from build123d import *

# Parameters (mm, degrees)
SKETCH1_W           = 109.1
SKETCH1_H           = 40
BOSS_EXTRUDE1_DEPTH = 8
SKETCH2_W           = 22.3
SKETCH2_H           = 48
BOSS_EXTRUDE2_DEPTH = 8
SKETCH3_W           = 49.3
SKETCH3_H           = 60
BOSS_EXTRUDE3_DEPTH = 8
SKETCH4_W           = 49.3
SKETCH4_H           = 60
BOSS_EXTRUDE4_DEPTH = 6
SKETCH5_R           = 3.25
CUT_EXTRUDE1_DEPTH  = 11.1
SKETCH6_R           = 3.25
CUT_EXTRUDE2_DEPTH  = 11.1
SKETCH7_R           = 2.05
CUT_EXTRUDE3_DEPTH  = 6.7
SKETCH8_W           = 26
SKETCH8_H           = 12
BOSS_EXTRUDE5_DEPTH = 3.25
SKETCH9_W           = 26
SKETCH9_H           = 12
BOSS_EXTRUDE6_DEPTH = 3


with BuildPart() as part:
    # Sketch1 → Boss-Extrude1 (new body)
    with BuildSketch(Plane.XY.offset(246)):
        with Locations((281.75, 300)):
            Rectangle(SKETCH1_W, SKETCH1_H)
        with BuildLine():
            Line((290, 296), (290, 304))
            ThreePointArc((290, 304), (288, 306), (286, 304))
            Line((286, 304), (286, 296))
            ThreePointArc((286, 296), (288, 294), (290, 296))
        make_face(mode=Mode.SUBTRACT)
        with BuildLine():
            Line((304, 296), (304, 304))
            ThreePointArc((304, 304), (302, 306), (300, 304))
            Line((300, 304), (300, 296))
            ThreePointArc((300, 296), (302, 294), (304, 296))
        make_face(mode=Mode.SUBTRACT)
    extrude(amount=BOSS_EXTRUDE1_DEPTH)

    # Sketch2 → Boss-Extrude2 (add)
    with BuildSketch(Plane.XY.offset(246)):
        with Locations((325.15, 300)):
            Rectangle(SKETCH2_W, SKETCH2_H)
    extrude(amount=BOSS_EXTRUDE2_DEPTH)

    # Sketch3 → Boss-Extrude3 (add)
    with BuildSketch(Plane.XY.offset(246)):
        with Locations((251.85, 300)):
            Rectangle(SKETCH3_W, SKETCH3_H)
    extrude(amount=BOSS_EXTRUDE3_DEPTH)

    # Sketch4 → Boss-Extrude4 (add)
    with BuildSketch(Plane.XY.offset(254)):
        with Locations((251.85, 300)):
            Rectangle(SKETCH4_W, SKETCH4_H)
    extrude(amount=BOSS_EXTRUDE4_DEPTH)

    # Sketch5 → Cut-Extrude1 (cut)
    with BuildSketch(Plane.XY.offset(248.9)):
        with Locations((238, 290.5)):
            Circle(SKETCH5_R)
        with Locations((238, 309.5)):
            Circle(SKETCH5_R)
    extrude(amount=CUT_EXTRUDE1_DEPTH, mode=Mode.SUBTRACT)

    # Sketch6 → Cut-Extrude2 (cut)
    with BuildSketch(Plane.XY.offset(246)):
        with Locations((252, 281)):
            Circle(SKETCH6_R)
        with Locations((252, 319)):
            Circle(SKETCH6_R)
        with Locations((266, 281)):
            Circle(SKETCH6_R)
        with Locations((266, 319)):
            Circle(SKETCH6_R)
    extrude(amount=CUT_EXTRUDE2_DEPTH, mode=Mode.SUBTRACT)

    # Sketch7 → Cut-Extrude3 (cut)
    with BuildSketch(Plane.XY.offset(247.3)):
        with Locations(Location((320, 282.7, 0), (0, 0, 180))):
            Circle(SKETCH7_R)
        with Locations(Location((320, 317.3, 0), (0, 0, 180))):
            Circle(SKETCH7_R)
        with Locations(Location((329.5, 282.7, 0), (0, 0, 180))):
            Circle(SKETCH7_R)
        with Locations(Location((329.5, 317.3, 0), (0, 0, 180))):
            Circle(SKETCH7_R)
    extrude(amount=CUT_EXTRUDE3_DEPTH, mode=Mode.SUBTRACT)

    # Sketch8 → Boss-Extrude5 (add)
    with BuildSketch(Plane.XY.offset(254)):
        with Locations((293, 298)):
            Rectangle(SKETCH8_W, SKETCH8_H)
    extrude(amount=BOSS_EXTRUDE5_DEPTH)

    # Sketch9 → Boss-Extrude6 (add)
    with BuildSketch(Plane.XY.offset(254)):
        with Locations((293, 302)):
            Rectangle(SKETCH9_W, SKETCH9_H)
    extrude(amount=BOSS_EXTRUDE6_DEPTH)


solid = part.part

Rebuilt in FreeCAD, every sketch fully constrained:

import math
import FreeCAD as App
import Part
import Sketcher

V = App.Vector
Q = App.Units.Quantity

doc = App.newDocument("Part")
params = doc.addObject("Spreadsheet::Sheet", "Params")
for row, (alias, value) in enumerate([
    ("sketch1_radius", "2 mm"),
    ("sketch1_height", "40 mm"),
    ("sketch1_height2", "8 mm"),
    ("sketch1_width", "109.1 mm"),
    ("pad1_length", "8 mm"),
    ("sketch2_height", "48 mm"),
    ("sketch2_width", "22.3 mm"),
    ("pad2_length", "8 mm"),
    ("sketch3_height", "60 mm"),
    ("sketch3_width", "49.3 mm"),
    ("pad3_length", "8 mm"),
    ("sketch4_height", "60 mm"),
    ("sketch4_width", "49.3 mm"),
    ("pad4_length", "6 mm"),
    ("sketch5_diameter", "6.5 mm"),
    ("pocket1_length", "11.1 mm"),
    ("sketch6_diameter", "6.5 mm"),
    ("pocket2_length", "11.1 mm"),
    ("sketch7_diameter", "4.1 mm"),
    ("pocket3_length", "6.7 mm"),
    ("sketch8_width", "26 mm"),
    ("sketch8_height", "12 mm"),
    ("pad5_length", "3.25 mm"),
    ("sketch9_width", "26 mm"),
    ("sketch9_height", "12 mm"),
    ("pad6_length", "3 mm"),
], start=1):
    params.set(f"A{row}", alias)
    params.set(f"B{row}", "=" + value)
    params.setAlias(f"B{row}", alias)

body = doc.addObject("PartDesign::Body", "Body")

# Sketch on XY plane
sketch1 = doc.addObject("Sketcher::SketchObject", "Sketch")
body.addObject(sketch1)
sketch1.AttachmentSupport = (doc.XY_Plane, [""])
sketch1.MapMode = "FlatFace"
sketch1.AttachmentOffset = App.Placement(V(0, 0, 246), App.Rotation())
sketch1.addGeometry(Part.LineSegment(V(227.2, 320, 0), V(227.2, 280, 0)), False)
sketch1.addGeometry(Part.LineSegment(V(227.2, 280, 0), V(336.3, 280, 0)), False)
sketch1.addGeometry(Part.LineSegment(V(336.3, 280, 0), V(336.3, 320, 0)), False)
sketch1.addGeometry(Part.LineSegment(V(336.3, 320, 0), V(227.2, 320, 0)), False)
sketch1.addGeometry(Part.LineSegment(V(290, 304, 0), V(290, 296, 0)), False)
sketch1.addGeometry(Part.ArcOfCircle(Part.Circle(V(288, 296, 0), V(0, 0, 1), 2), math.radians(180), math.radians(360)), False)
sketch1.addGeometry(Part.LineSegment(V(286, 296, 0), V(286, 304, 0)), False)
sketch1.addGeometry(Part.ArcOfCircle(Part.Circle(V(288, 304, 0), V(0, 0, 1), 2), math.radians(0), math.radians(180)), False)
sketch1.addGeometry(Part.LineSegment(V(304, 304, 0), V(304, 296, 0)), False)
sketch1.addGeometry(Part.ArcOfCircle(Part.Circle(V(302, 296, 0), V(0, 0, 1), 2), math.radians(180), math.radians(360)), False)
sketch1.addGeometry(Part.LineSegment(V(300, 296, 0), V(300, 304, 0)), False)
sketch1.addGeometry(Part.ArcOfCircle(Part.Circle(V(302, 304, 0), V(0, 0, 1), 2), math.radians(0), math.radians(180)), False)
sketch1.addConstraint(Sketcher.Constraint("Coincident", 0, 2, 1, 1))
sketch1.addConstraint(Sketcher.Constraint("Coincident", 1, 2, 2, 1))
sketch1.addConstraint(Sketcher.Constraint("Coincident", 2, 2, 3, 1))
sketch1.addConstraint(Sketcher.Constraint("Coincident", 3, 2, 0, 1))
sketch1.addConstraint(Sketcher.Constraint("Tangent", 4, 2, 5, 2))
sketch1.addConstraint(Sketcher.Constraint("Tangent", 5, 1, 6, 1))
sketch1.addConstraint(Sketcher.Constraint("Tangent", 6, 2, 7, 2))
sketch1.addConstraint(Sketcher.Constraint("Tangent", 7, 1, 4, 1))
sketch1.addConstraint(Sketcher.Constraint("Tangent", 8, 2, 9, 2))
sketch1.addConstraint(Sketcher.Constraint("Tangent", 9, 1, 10, 1))
sketch1.addConstraint(Sketcher.Constraint("Tangent", 10, 2, 11, 2))
sketch1.addConstraint(Sketcher.Constraint("Tangent", 11, 1, 8, 1))
sketch1.addConstraint(Sketcher.Constraint("Vertical", 0))
sketch1.addConstraint(Sketcher.Constraint("Horizontal", 1))
sketch1.addConstraint(Sketcher.Constraint("Vertical", 2))
sketch1.addConstraint(Sketcher.Constraint("Horizontal", 3))
sketch1.addConstraint(Sketcher.Constraint("Vertical", 4))
sketch1.addConstraint(Sketcher.Constraint("Vertical", 6))
sketch1.addConstraint(Sketcher.Constraint("Vertical", 8))
sketch1.addConstraint(Sketcher.Constraint("Vertical", 10))
sketch1.addConstraint(Sketcher.Constraint("Equal", 7, 9))
sketch1.addConstraint(Sketcher.Constraint("Horizontal", 5, 3, 9, 3))
sketch1.addConstraint(Sketcher.Constraint("Horizontal", 7, 3, 11, 3))
sketch1.addConstraint(Sketcher.Constraint("Radius", 5, Q("2 mm")))
sketch1.addConstraint(Sketcher.Constraint("DistanceY", 0, 2, 0, 1, Q("40 mm")))
sketch1.addConstraint(Sketcher.Constraint("DistanceY", 4, 2, 4, 1, Q("8 mm")))
sketch1.addConstraint(Sketcher.Constraint("DistanceX", 1, 1, 1, 2, Q("109.1 mm")))
sketch1.addConstraint(Sketcher.Constraint("DistanceX", -1, 1, 5, 3, Q("288 mm")))
sketch1.addConstraint(Sketcher.Constraint("DistanceY", -1, 1, 5, 3, Q("296 mm")))
sketch1.addConstraint(Sketcher.Constraint("DistanceX", -1, 1, 9, 3, Q("302 mm")))
sketch1.addConstraint(Sketcher.Constraint("DistanceY", -1, 1, 0, 2, Q("280 mm")))
sketch1.addConstraint(Sketcher.Constraint("DistanceX", -1, 1, 0, 2, Q("227.2 mm")))
sketch1.setExpression("Constraints[23]", "Params.sketch1_radius")
sketch1.setExpression("Constraints[24]", "Params.sketch1_height")
sketch1.setExpression("Constraints[25]", "Params.sketch1_height2")
sketch1.setExpression("Constraints[26]", "Params.sketch1_width")
pad1 = doc.addObject("PartDesign::Pad", "Pad")
body.addObject(pad1)
pad1.Profile = sketch1
pad1.setExpression("Length", "Params.pad1_length")

# Sketch on XY plane
sketch2 = doc.addObject("Sketcher::SketchObject", "Sketch001")
body.addObject(sketch2)
sketch2.AttachmentSupport = (doc.XY_Plane, [""])
sketch2.MapMode = "FlatFace"
sketch2.AttachmentOffset = App.Placement(V(0, 0, 246), App.Rotation())
sketch2.addGeometry(Part.LineSegment(V(314, 324, 0), V(314, 276, 0)), False)
sketch2.addGeometry(Part.LineSegment(V(314, 276, 0), V(336.3, 276, 0)), False)
sketch2.addGeometry(Part.LineSegment(V(336.3, 276, 0), V(336.3, 324, 0)), False)
sketch2.addGeometry(Part.LineSegment(V(336.3, 324, 0), V(314, 324, 0)), False)
sketch2.addConstraint(Sketcher.Constraint("Coincident", 0, 2, 1, 1))
sketch2.addConstraint(Sketcher.Constraint("Coincident", 1, 2, 2, 1))
sketch2.addConstraint(Sketcher.Constraint("Coincident", 2, 2, 3, 1))
sketch2.addConstraint(Sketcher.Constraint("Coincident", 3, 2, 0, 1))
sketch2.addConstraint(Sketcher.Constraint("Vertical", 0))
sketch2.addConstraint(Sketcher.Constraint("Horizontal", 1))
sketch2.addConstraint(Sketcher.Constraint("Vertical", 2))
sketch2.addConstraint(Sketcher.Constraint("Horizontal", 3))
sketch2.addConstraint(Sketcher.Constraint("DistanceY", 0, 2, 0, 1, Q("48 mm")))
sketch2.addConstraint(Sketcher.Constraint("DistanceX", 1, 1, 1, 2, Q("22.3 mm")))
sketch2.addConstraint(Sketcher.Constraint("DistanceX", -1, 1, 0, 2, Q("314 mm")))
sketch2.addConstraint(Sketcher.Constraint("DistanceY", -1, 1, 0, 2, Q("276 mm")))
sketch2.setExpression("Constraints[8]", "Params.sketch2_height")
sketch2.setExpression("Constraints[9]", "Params.sketch2_width")
pad2 = doc.addObject("PartDesign::Pad", "Pad001")
body.addObject(pad2)
pad2.Profile = sketch2
pad2.setExpression("Length", "Params.pad2_length")

# Sketch on XY plane
sketch3 = doc.addObject("Sketcher::SketchObject", "Sketch002")
body.addObject(sketch3)
sketch3.AttachmentSupport = (doc.XY_Plane, [""])
sketch3.MapMode = "FlatFace"
sketch3.AttachmentOffset = App.Placement(V(0, 0, 246), App.Rotation())
sketch3.addGeometry(Part.LineSegment(V(227.2, 330, 0), V(227.2, 270, 0)), False)
sketch3.addGeometry(Part.LineSegment(V(227.2, 270, 0), V(276.5, 270, 0)), False)
sketch3.addGeometry(Part.LineSegment(V(276.5, 270, 0), V(276.5, 330, 0)), False)
sketch3.addGeometry(Part.LineSegment(V(276.5, 330, 0), V(227.2, 330, 0)), False)
sketch3.addConstraint(Sketcher.Constraint("Coincident", 0, 2, 1, 1))
sketch3.addConstraint(Sketcher.Constraint("Coincident", 1, 2, 2, 1))
sketch3.addConstraint(Sketcher.Constraint("Coincident", 2, 2, 3, 1))
sketch3.addConstraint(Sketcher.Constraint("Coincident", 3, 2, 0, 1))
sketch3.addConstraint(Sketcher.Constraint("Vertical", 0))
sketch3.addConstraint(Sketcher.Constraint("Horizontal", 1))
sketch3.addConstraint(Sketcher.Constraint("Vertical", 2))
sketch3.addConstraint(Sketcher.Constraint("Horizontal", 3))
sketch3.addConstraint(Sketcher.Constraint("DistanceY", 0, 2, 0, 1, Q("60 mm")))
sketch3.addConstraint(Sketcher.Constraint("DistanceX", 1, 1, 1, 2, Q("49.3 mm")))
sketch3.addConstraint(Sketcher.Constraint("DistanceY", -1, 1, 0, 2, Q("270 mm")))
sketch3.addConstraint(Sketcher.Constraint("DistanceX", -1, 1, 0, 2, Q("227.2 mm")))
sketch3.setExpression("Constraints[8]", "Params.sketch3_height")
sketch3.setExpression("Constraints[9]", "Params.sketch3_width")
pad3 = doc.addObject("PartDesign::Pad", "Pad002")
body.addObject(pad3)
pad3.Profile = sketch3
pad3.setExpression("Length", "Params.pad3_length")

# Sketch on XY plane
sketch4 = doc.addObject("Sketcher::SketchObject", "Sketch003")
body.addObject(sketch4)
sketch4.AttachmentSupport = (doc.XY_Plane, [""])
sketch4.MapMode = "FlatFace"
sketch4.AttachmentOffset = App.Placement(V(0, 0, 254), App.Rotation())
sketch4.addGeometry(Part.LineSegment(V(227.2, 330, 0), V(227.2, 270, 0)), False)
sketch4.addGeometry(Part.LineSegment(V(227.2, 270, 0), V(276.5, 270, 0)), False)
sketch4.addGeometry(Part.LineSegment(V(276.5, 270, 0), V(276.5, 330, 0)), False)
sketch4.addGeometry(Part.LineSegment(V(276.5, 330, 0), V(227.2, 330, 0)), False)
sketch4.addConstraint(Sketcher.Constraint("Coincident", 0, 2, 1, 1))
sketch4.addConstraint(Sketcher.Constraint("Coincident", 1, 2, 2, 1))
sketch4.addConstraint(Sketcher.Constraint("Coincident", 2, 2, 3, 1))
sketch4.addConstraint(Sketcher.Constraint("Coincident", 3, 2, 0, 1))
sketch4.addConstraint(Sketcher.Constraint("Vertical", 0))
sketch4.addConstraint(Sketcher.Constraint("Horizontal", 1))
sketch4.addConstraint(Sketcher.Constraint("Vertical", 2))
sketch4.addConstraint(Sketcher.Constraint("Horizontal", 3))
sketch4.addConstraint(Sketcher.Constraint("DistanceY", 0, 2, 0, 1, Q("60 mm")))
sketch4.addConstraint(Sketcher.Constraint("DistanceX", 1, 1, 1, 2, Q("49.3 mm")))
sketch4.addConstraint(Sketcher.Constraint("DistanceY", -1, 1, 0, 2, Q("270 mm")))
sketch4.addConstraint(Sketcher.Constraint("DistanceX", -1, 1, 0, 2, Q("227.2 mm")))
sketch4.setExpression("Constraints[8]", "Params.sketch4_height")
sketch4.setExpression("Constraints[9]", "Params.sketch4_width")
pad4 = doc.addObject("PartDesign::Pad", "Pad003")
body.addObject(pad4)
pad4.Profile = sketch4
pad4.setExpression("Length", "Params.pad4_length")

# Sketch on XY plane
sketch5 = doc.addObject("Sketcher::SketchObject", "Sketch004")
body.addObject(sketch5)
sketch5.AttachmentSupport = (doc.XY_Plane, [""])
sketch5.MapMode = "FlatFace"
sketch5.AttachmentOffset = App.Placement(V(0, 0, 248.9), App.Rotation())
sketch5.addGeometry(Part.Circle(V(238, 290.5, 0), V(0, 0, 1), 3.25), False)
sketch5.addGeometry(Part.Circle(V(238, 309.5, 0), V(0, 0, 1), 3.25), False)
sketch5.addConstraint(Sketcher.Constraint("Equal", 0, 1))
sketch5.addConstraint(Sketcher.Constraint("Vertical", 0, 3, 1, 3))
sketch5.addConstraint(Sketcher.Constraint("Diameter", 0, Q("6.5 mm")))
sketch5.addConstraint(Sketcher.Constraint("DistanceX", -1, 1, 0, 3, Q("238 mm")))
sketch5.addConstraint(Sketcher.Constraint("DistanceY", 0, 3, 1, 3, Q("19 mm")))
sketch5.addConstraint(Sketcher.Constraint("DistanceY", -1, 1, 0, 3, Q("290.5 mm")))
sketch5.setExpression("Constraints[2]", "Params.sketch5_diameter")
pocket1 = doc.addObject("PartDesign::Pocket", "Pocket")
body.addObject(pocket1)
pocket1.Profile = sketch5
pocket1.setExpression("Length", "Params.pocket1_length")
pocket1.Reversed = True

# Sketch on XY plane
sketch6 = doc.addObject("Sketcher::SketchObject", "Sketch005")
body.addObject(sketch6)
sketch6.AttachmentSupport = (doc.XY_Plane, [""])
sketch6.MapMode = "FlatFace"
sketch6.AttachmentOffset = App.Placement(V(0, 0, 246), App.Rotation())
sketch6.addGeometry(Part.Circle(V(252, 281, 0), V(0, 0, 1), 3.25), False)
sketch6.addGeometry(Part.Circle(V(252, 319, 0), V(0, 0, 1), 3.25), False)
sketch6.addGeometry(Part.Circle(V(266, 281, 0), V(0, 0, 1), 3.25), False)
sketch6.addGeometry(Part.Circle(V(266, 319, 0), V(0, 0, 1), 3.25), False)
sketch6.addConstraint(Sketcher.Constraint("Equal", 0, 1))
sketch6.addConstraint(Sketcher.Constraint("Equal", 1, 2))
sketch6.addConstraint(Sketcher.Constraint("Equal", 2, 3))
sketch6.addConstraint(Sketcher.Constraint("Horizontal", 0, 3, 2, 3))
sketch6.addConstraint(Sketcher.Constraint("Horizontal", 1, 3, 3, 3))
sketch6.addConstraint(Sketcher.Constraint("Vertical", 0, 3, 1, 3))
sketch6.addConstraint(Sketcher.Constraint("Vertical", 2, 3, 3, 3))
sketch6.addConstraint(Sketcher.Constraint("Diameter", 0, Q("6.5 mm")))
sketch6.addConstraint(Sketcher.Constraint("DistanceX", -1, 1, 0, 3, Q("252 mm")))
sketch6.addConstraint(Sketcher.Constraint("DistanceY", -1, 1, 0, 3, Q("281 mm")))
sketch6.addConstraint(Sketcher.Constraint("DistanceY", -1, 1, 1, 3, Q("319 mm")))
sketch6.addConstraint(Sketcher.Constraint("DistanceX", -1, 1, 2, 3, Q("266 mm")))
sketch6.setExpression("Constraints[7]", "Params.sketch6_diameter")
pocket2 = doc.addObject("PartDesign::Pocket", "Pocket001")
body.addObject(pocket2)
pocket2.Profile = sketch6
pocket2.setExpression("Length", "Params.pocket2_length")
pocket2.Reversed = True

# Sketch on XY plane
sketch7 = doc.addObject("Sketcher::SketchObject", "Sketch006")
body.addObject(sketch7)
sketch7.AttachmentSupport = (doc.XY_Plane, [""])
sketch7.MapMode = "FlatFace"
sketch7.AttachmentOffset = App.Placement(V(0, 0, 247.3), App.Rotation())
sketch7.addGeometry(Part.Circle(V(320, 282.7, 0), V(0, 0, 1), 2.05), False)
sketch7.addGeometry(Part.Circle(V(320, 317.3, 0), V(0, 0, 1), 2.05), False)
sketch7.addGeometry(Part.Circle(V(329.5, 282.7, 0), V(0, 0, 1), 2.05), False)
sketch7.addGeometry(Part.Circle(V(329.5, 317.3, 0), V(0, 0, 1), 2.05), False)
sketch7.addConstraint(Sketcher.Constraint("Equal", 0, 1))
sketch7.addConstraint(Sketcher.Constraint("Equal", 1, 2))
sketch7.addConstraint(Sketcher.Constraint("Equal", 2, 3))
sketch7.addConstraint(Sketcher.Constraint("Horizontal", 0, 3, 2, 3))
sketch7.addConstraint(Sketcher.Constraint("Horizontal", 1, 3, 3, 3))
sketch7.addConstraint(Sketcher.Constraint("Vertical", 0, 3, 1, 3))
sketch7.addConstraint(Sketcher.Constraint("Vertical", 2, 3, 3, 3))
sketch7.addConstraint(Sketcher.Constraint("Diameter", 0, Q("4.1 mm")))
sketch7.addConstraint(Sketcher.Constraint("DistanceX", -1, 1, 0, 3, Q("320 mm")))
sketch7.addConstraint(Sketcher.Constraint("DistanceY", -1, 1, 0, 3, Q("282.7 mm")))
sketch7.addConstraint(Sketcher.Constraint("DistanceY", -1, 1, 1, 3, Q("317.3 mm")))
sketch7.addConstraint(Sketcher.Constraint("DistanceX", -1, 1, 2, 3, Q("329.5 mm")))
sketch7.setExpression("Constraints[7]", "Params.sketch7_diameter")
pocket3 = doc.addObject("PartDesign::Pocket", "Pocket002")
body.addObject(pocket3)
pocket3.Profile = sketch7
pocket3.setExpression("Length", "Params.pocket3_length")
pocket3.Reversed = True

# Sketch on XY plane
sketch8 = doc.addObject("Sketcher::SketchObject", "Sketch007")
body.addObject(sketch8)
sketch8.AttachmentSupport = (doc.XY_Plane, [""])
sketch8.MapMode = "FlatFace"
sketch8.AttachmentOffset = App.Placement(V(0, 0, 254), App.Rotation())
sketch8.addGeometry(Part.LineSegment(V(280, 304, 0), V(280, 292, 0)), False)
sketch8.addGeometry(Part.LineSegment(V(280, 292, 0), V(306, 292, 0)), False)
sketch8.addGeometry(Part.LineSegment(V(306, 292, 0), V(306, 304, 0)), False)
sketch8.addGeometry(Part.LineSegment(V(306, 304, 0), V(280, 304, 0)), False)
sketch8.addConstraint(Sketcher.Constraint("Coincident", 0, 2, 1, 1))
sketch8.addConstraint(Sketcher.Constraint("Coincident", 1, 2, 2, 1))
sketch8.addConstraint(Sketcher.Constraint("Coincident", 2, 2, 3, 1))
sketch8.addConstraint(Sketcher.Constraint("Coincident", 3, 2, 0, 1))
sketch8.addConstraint(Sketcher.Constraint("Vertical", 0))
sketch8.addConstraint(Sketcher.Constraint("Horizontal", 1))
sketch8.addConstraint(Sketcher.Constraint("Vertical", 2))
sketch8.addConstraint(Sketcher.Constraint("Horizontal", 3))
sketch8.addConstraint(Sketcher.Constraint("DistanceX", 1, 1, 1, 2, Q("26 mm")))
sketch8.addConstraint(Sketcher.Constraint("DistanceY", 0, 2, 0, 1, Q("12 mm")))
sketch8.addConstraint(Sketcher.Constraint("DistanceX", -1, 1, 0, 2, Q("280 mm")))
sketch8.addConstraint(Sketcher.Constraint("DistanceY", -1, 1, 0, 2, Q("292 mm")))
sketch8.setExpression("Constraints[8]", "Params.sketch8_width")
sketch8.setExpression("Constraints[9]", "Params.sketch8_height")
pad5 = doc.addObject("PartDesign::Pad", "Pad004")
body.addObject(pad5)
pad5.Profile = sketch8
pad5.setExpression("Length", "Params.pad5_length")

# Sketch on XY plane
sketch9 = doc.addObject("Sketcher::SketchObject", "Sketch008")
body.addObject(sketch9)
sketch9.AttachmentSupport = (doc.XY_Plane, [""])
sketch9.MapMode = "FlatFace"
sketch9.AttachmentOffset = App.Placement(V(0, 0, 254), App.Rotation())
sketch9.addGeometry(Part.LineSegment(V(280, 308, 0), V(280, 296, 0)), False)
sketch9.addGeometry(Part.LineSegment(V(280, 296, 0), V(306, 296, 0)), False)
sketch9.addGeometry(Part.LineSegment(V(306, 296, 0), V(306, 308, 0)), False)
sketch9.addGeometry(Part.LineSegment(V(306, 308, 0), V(280, 308, 0)), False)
sketch9.addConstraint(Sketcher.Constraint("Coincident", 0, 2, 1, 1))
sketch9.addConstraint(Sketcher.Constraint("Coincident", 1, 2, 2, 1))
sketch9.addConstraint(Sketcher.Constraint("Coincident", 2, 2, 3, 1))
sketch9.addConstraint(Sketcher.Constraint("Coincident", 3, 2, 0, 1))
sketch9.addConstraint(Sketcher.Constraint("Vertical", 0))
sketch9.addConstraint(Sketcher.Constraint("Horizontal", 1))
sketch9.addConstraint(Sketcher.Constraint("Vertical", 2))
sketch9.addConstraint(Sketcher.Constraint("Horizontal", 3))
sketch9.addConstraint(Sketcher.Constraint("DistanceX", 1, 1, 1, 2, Q("26 mm")))
sketch9.addConstraint(Sketcher.Constraint("DistanceY", 0, 2, 0, 1, Q("12 mm")))
sketch9.addConstraint(Sketcher.Constraint("DistanceX", -1, 1, 0, 2, Q("280 mm")))
sketch9.addConstraint(Sketcher.Constraint("DistanceY", -1, 1, 0, 2, Q("296 mm")))
sketch9.setExpression("Constraints[8]", "Params.sketch9_width")
sketch9.setExpression("Constraints[9]", "Params.sketch9_height")
pad6 = doc.addObject("PartDesign::Pad", "Pad005")
body.addObject(pad6)
pad6.Profile = sketch9
pad6.setExpression("Length", "Params.pad6_length")

doc.recompute()
